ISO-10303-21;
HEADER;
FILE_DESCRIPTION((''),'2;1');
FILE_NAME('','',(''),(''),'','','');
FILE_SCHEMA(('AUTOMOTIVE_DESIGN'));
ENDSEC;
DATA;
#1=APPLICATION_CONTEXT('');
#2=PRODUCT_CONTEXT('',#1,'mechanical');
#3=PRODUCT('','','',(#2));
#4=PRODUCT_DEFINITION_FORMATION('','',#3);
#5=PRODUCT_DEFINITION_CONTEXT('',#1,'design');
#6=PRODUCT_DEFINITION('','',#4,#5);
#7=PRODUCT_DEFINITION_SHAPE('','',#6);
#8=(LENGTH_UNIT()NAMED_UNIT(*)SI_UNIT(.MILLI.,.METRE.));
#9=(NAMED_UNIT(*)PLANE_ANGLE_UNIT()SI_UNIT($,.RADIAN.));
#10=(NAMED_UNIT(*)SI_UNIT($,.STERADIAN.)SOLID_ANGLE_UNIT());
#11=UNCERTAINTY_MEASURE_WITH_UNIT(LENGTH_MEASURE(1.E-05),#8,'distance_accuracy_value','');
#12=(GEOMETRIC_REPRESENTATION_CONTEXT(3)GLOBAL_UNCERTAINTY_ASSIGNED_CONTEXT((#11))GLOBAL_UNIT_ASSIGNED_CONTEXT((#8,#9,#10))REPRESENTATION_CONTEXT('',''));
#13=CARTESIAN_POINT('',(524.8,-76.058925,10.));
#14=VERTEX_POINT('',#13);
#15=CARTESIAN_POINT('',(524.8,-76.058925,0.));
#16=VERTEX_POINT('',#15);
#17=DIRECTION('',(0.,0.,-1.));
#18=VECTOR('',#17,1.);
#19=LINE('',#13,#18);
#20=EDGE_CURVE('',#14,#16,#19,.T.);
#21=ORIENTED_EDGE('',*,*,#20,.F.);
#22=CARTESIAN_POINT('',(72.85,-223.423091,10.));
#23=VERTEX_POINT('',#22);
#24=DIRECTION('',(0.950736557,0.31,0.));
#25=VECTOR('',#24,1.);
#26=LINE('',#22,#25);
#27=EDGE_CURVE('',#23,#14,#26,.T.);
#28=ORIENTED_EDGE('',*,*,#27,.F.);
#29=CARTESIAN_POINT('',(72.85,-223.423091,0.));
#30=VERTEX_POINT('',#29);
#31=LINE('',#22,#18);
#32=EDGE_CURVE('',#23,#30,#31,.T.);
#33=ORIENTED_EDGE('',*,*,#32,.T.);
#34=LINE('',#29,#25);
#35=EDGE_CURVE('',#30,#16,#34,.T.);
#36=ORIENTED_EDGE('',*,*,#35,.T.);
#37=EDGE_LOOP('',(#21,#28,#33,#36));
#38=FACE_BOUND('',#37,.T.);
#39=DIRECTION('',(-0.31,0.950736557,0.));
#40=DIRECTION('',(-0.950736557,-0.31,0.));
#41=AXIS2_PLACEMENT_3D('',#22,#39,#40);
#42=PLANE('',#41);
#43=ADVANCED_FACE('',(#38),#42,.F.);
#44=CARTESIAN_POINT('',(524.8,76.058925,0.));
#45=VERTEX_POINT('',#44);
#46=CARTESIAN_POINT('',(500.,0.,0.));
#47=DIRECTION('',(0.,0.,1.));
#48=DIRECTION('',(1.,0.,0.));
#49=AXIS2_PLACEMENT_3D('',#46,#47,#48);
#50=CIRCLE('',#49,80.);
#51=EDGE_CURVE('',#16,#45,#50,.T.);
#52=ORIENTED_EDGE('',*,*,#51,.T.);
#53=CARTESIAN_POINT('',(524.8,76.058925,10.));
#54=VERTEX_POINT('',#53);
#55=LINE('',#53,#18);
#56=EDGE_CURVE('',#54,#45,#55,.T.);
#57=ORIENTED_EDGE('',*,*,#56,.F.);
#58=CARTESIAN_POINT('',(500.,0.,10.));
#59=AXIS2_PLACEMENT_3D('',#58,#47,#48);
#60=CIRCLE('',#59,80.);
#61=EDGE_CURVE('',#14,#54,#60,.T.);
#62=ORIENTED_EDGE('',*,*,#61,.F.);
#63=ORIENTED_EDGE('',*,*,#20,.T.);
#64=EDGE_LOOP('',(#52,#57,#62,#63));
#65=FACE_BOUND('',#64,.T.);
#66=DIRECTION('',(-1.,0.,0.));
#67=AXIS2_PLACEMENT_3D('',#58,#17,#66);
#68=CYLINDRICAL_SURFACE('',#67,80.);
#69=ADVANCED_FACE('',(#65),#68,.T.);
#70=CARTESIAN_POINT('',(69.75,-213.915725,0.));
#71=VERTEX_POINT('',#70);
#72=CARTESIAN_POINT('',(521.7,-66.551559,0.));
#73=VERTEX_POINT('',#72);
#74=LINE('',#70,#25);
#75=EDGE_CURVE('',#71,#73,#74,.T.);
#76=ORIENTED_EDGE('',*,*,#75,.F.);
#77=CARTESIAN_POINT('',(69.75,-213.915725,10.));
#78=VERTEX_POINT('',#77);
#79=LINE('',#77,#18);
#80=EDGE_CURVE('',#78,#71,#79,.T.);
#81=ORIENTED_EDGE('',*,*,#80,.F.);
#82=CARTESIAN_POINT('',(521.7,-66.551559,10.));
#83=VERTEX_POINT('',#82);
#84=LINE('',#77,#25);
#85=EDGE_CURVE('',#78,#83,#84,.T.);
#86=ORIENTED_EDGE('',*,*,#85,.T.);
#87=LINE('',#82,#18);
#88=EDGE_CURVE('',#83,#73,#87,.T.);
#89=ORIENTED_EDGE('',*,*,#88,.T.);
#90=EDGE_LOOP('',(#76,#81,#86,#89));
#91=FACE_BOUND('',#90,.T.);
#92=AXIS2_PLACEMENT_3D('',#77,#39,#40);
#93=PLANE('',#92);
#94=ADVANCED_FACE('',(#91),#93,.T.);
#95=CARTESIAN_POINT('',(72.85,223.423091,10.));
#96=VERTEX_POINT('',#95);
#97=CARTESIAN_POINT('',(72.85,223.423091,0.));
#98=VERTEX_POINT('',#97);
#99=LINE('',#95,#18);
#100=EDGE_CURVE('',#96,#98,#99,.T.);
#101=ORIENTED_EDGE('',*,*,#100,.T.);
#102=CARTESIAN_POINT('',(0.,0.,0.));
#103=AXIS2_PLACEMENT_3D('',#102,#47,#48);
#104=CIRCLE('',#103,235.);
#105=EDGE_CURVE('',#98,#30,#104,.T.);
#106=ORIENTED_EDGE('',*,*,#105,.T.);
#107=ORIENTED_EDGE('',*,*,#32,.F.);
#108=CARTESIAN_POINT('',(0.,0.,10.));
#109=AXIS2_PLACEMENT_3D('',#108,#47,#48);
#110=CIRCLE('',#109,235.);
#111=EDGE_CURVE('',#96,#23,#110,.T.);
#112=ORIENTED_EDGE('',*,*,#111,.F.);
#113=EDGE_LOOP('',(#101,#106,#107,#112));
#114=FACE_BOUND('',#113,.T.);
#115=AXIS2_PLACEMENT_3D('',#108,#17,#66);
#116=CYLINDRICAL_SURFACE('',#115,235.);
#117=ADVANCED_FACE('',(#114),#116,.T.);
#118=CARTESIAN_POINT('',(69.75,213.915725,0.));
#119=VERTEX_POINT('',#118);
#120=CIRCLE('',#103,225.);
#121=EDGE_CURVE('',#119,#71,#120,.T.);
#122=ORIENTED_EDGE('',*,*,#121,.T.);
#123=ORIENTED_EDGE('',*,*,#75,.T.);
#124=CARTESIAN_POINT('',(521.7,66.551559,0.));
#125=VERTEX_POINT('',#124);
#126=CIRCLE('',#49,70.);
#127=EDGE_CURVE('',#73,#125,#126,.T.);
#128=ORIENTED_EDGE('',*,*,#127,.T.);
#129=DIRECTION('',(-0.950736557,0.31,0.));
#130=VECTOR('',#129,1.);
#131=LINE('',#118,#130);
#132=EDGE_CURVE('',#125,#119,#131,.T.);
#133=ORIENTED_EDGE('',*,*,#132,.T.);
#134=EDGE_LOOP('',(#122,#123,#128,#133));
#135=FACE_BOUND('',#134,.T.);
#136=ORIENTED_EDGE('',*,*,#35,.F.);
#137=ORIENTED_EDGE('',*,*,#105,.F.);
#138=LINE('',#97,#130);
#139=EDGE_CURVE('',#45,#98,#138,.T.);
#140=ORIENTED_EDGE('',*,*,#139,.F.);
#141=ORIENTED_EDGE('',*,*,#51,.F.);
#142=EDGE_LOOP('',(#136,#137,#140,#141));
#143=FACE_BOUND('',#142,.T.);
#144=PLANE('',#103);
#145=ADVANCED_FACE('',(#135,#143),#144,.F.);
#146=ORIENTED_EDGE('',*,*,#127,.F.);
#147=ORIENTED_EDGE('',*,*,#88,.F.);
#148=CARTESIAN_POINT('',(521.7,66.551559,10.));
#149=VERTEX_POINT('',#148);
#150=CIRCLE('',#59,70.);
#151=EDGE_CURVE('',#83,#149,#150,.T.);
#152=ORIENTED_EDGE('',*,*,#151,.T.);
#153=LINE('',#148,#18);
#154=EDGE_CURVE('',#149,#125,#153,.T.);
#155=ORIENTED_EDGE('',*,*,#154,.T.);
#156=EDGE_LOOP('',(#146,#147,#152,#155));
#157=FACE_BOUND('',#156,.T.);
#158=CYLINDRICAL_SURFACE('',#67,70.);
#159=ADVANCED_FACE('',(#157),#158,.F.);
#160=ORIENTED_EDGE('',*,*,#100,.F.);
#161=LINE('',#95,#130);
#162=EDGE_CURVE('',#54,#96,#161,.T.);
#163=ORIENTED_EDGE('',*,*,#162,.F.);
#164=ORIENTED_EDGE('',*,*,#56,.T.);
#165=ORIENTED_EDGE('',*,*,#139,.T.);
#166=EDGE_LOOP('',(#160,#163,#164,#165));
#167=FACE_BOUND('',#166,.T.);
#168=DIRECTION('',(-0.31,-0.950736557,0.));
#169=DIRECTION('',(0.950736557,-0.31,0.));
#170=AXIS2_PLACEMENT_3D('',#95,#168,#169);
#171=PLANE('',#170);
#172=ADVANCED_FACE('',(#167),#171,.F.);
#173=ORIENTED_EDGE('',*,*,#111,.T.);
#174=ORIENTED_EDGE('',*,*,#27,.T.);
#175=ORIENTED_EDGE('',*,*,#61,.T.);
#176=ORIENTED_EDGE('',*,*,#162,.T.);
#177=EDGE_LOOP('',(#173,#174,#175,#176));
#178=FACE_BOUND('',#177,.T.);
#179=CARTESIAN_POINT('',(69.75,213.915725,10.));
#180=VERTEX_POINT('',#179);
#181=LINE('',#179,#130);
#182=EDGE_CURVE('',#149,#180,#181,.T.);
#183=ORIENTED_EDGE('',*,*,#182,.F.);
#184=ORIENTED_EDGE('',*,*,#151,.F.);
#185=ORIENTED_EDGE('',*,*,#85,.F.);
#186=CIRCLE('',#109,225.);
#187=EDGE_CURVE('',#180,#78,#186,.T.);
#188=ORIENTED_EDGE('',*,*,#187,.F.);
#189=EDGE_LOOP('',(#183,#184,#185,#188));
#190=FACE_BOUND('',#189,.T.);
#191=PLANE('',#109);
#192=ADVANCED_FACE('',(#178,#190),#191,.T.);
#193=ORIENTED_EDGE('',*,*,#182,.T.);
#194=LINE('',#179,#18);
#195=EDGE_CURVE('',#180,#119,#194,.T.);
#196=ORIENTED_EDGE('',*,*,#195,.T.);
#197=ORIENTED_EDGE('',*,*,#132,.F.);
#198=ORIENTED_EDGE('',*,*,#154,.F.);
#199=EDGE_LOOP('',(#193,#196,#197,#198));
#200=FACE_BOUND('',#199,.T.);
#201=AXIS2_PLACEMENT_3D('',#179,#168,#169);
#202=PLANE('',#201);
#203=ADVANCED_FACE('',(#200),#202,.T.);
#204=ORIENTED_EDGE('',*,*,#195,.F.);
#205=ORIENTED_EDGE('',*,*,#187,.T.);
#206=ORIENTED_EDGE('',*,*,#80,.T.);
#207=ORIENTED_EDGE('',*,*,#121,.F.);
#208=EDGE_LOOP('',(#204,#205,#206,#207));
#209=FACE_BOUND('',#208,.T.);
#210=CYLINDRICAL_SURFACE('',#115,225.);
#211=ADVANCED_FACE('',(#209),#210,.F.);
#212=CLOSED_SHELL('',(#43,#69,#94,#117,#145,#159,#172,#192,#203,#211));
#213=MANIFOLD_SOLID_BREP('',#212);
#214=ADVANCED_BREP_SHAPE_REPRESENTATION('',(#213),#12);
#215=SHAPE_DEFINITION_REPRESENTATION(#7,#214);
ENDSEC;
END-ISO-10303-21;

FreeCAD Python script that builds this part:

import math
import FreeCAD as App
import Part
import Sketcher
Q = App.Units.Quantity

doc = App.newDocument("Part")
params = doc.addObject("Spreadsheet::Sheet", "Params")
for row, (alias, value) in enumerate([
    ("sketch1_radius", "235 mm"),
    ("sketch1_radius2", "80 mm"),
    ("sketch1_radius3", "225 mm"),
    ("pad1_length", "10 mm"),
], start=1):
    params.set(f"A{row}", alias)
    params.set(f"B{row}", "=" + value)
    params.setAlias(f"B{row}", alias)

body = doc.addObject("PartDesign::Body", "Body")

# Sketch on XY plane
sketch1 = body.newObject("Sketcher::SketchObject", "Sketch")
sketch1.AttachmentSupport = (doc.getObject("XY_Plane"), [""])
sketch1.MapMode = "FlatFace"
sketch1.addGeometry(Part.LineSegment(App.Vector(525, 76, 0), App.Vector(73, 223, 0)), False)
sketch1.addGeometry(Part.ArcOfCircle(Part.Circle(App.Vector(0, 0, 0), App.Vector(0, 0, 1), 235), math.radians(72), math.radians(288)), False)
sketch1.addGeometry(Part.LineSegment(App.Vector(73, -223, 0), App.Vector(525, -76, 0)), False)
sketch1.addGeometry(Part.ArcOfCircle(Part.Circle(App.Vector(500, 0, 0), App.Vector(0, 0, 1), 80), math.radians(-72), math.radians(72)), False)
sketch1.addGeometry(Part.ArcOfCircle(Part.Circle(App.Vector(0, 0, 0), App.Vector(0, 0, 1), 225), math.radians(72), math.radians(288)), False)
sketch1.addGeometry(Part.LineSegment(App.Vector(70, 214, 0), App.Vector(522, 67, 0)), False)
sketch1.addGeometry(Part.ArcOfCircle(Part.Circle(App.Vector(500, 0, 0), App.Vector(0, 0, 1), 70), math.radians(-72), math.radians(72)), False)
sketch1.addGeometry(Part.LineSegment(App.Vector(522, -67, 0), App.Vector(70, -214, 0)), False)
sketch1.addConstraint(Sketcher.Constraint("Tangent", 0, 2, 1, 1))
sketch1.addConstraint(Sketcher.Constraint("Tangent", 1, 2, 2, 1))
sketch1.addConstraint(Sketcher.Constraint("Tangent", 2, 2, 3, 1))
sketch1.addConstraint(Sketcher.Constraint("Tangent", 3, 2, 0, 1))
sketch1.addConstraint(Sketcher.Constraint("Tangent", 4, 1, 5, 1))
sketch1.addConstraint(Sketcher.Constraint("Tangent", 5, 2, 6, 2))
sketch1.addConstraint(Sketcher.Constraint("Tangent", 6, 1, 7, 1))
sketch1.addConstraint(Sketcher.Constraint("Tangent", 7, 2, 4, 2))
sketch1.addConstraint(Sketcher.Constraint("Coincident", 1, 3, -1, 1))
sketch1.addConstraint(Sketcher.Constraint("Coincident", 4, 3, -1, 1))
sketch1.addConstraint(Sketcher.Constraint("Coincident", 6, 3, 3, 3))
sketch1.addConstraint(Sketcher.Constraint("PointOnObject", 3, 3, -1))
sketch1.addConstraint(Sketcher.Constraint("Parallel", 0, 5))
sketch1.addConstraint(Sketcher.Constraint("Radius", 1, Q("235 mm")))
sketch1.addConstraint(Sketcher.Constraint("Radius", 3, Q("80 mm")))
sketch1.addConstraint(Sketcher.Constraint("Radius", 4, Q("225 mm")))
sketch1.addConstraint(Sketcher.Constraint("DistanceX", -1, 1, 3, 3, Q("500 mm")))
sketch1.setExpression("Constraints[13]", "Params.sketch1_radius")
sketch1.setExpression("Constraints[14]", "Params.sketch1_radius2")
sketch1.setExpression("Constraints[15]", "Params.sketch1_radius3")
pad1 = body.newObject("PartDesign::Pad", "Pad")
pad1.Profile = sketch1
pad1.setExpression("Length", "Params.pad1_length")

doc.recompute()
